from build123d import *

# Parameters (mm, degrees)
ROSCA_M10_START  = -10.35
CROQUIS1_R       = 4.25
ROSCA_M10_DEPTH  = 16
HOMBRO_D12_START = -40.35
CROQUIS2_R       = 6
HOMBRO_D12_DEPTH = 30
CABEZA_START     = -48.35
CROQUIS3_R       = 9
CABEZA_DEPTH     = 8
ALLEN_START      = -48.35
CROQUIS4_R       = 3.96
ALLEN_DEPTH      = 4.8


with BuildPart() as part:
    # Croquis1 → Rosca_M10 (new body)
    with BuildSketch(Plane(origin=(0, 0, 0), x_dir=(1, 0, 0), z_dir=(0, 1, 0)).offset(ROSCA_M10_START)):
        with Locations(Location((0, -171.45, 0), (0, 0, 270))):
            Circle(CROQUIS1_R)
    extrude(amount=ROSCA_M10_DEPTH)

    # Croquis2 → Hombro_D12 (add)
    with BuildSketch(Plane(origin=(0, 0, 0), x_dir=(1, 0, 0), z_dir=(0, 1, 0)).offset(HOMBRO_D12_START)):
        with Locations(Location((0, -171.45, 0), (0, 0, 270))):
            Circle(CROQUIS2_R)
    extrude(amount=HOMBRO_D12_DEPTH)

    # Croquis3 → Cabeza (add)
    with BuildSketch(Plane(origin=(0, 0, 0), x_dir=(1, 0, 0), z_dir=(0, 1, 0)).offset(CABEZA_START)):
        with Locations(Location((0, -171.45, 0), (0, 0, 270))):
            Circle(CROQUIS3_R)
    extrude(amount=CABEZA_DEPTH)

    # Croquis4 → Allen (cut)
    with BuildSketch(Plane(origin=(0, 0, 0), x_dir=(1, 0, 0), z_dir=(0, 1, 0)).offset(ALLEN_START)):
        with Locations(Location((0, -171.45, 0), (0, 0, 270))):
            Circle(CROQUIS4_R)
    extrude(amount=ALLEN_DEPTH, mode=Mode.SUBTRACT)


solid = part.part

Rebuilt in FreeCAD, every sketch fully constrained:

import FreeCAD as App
import Part
import Sketcher
from FreeCAD import Vector

doc = App.newDocument("Part")
body = doc.addObject("PartDesign::Body", "Body")

sketch1 = body.newObject("Sketcher::SketchObject", "Sketch")
sketch1.AttachmentSupport = (doc.getObject("XZ_Plane"), [""])
sketch1.MapMode = "FlatFace"
sketch1.AttachmentOffset = App.Placement(Vector(0, 0, 10.35), App.Rotation())
sketch1.addGeometry(Part.Circle(Vector(0, 171.4, 0), Vector(0, 0, 1), 4.2), False)
sketch1.addConstraint([
    Sketcher.Constraint("PointOnObject", 0, 3, -2),
    Sketcher.Constraint("Diameter", 0, 8.5),
    Sketcher.Constraint("DistanceY", -1, 1, 0, 3, 171.45),
])
pad1 = body.newObject("PartDesign::Pad", "Pad")
pad1.Profile = sketch1
pad1.Length = 16
pad1.Reversed = True

sketch2 = body.newObject("Sketcher::SketchObject", "Sketch001")
sketch2.AttachmentSupport = (doc.getObject("XZ_Plane"), [""])
sketch2.MapMode = "FlatFace"
sketch2.AttachmentOffset = App.Placement(Vector(0, 0, 40.35), App.Rotation())
sketch2.addGeometry(Part.Circle(Vector(0, 171, 0), Vector(0, 0, 1), 6), False)
sketch2.addConstraint([
    Sketcher.Constraint("PointOnObject", 0, 3, -2),
    Sketcher.Constraint("Diameter", 0, 12.0),
    Sketcher.Constraint("DistanceY", -1, 1, 0, 3, 171.45),
])
pad2 = body.newObject("PartDesign::Pad", "Pad001")
pad2.Profile = sketch2
pad2.Length = 30
pad2.Reversed = True

sketch3 = body.newObject("Sketcher::SketchObject", "Sketch002")
sketch3.AttachmentSupport = (doc.getObject("XZ_Plane"), [""])
sketch3.MapMode = "FlatFace"
sketch3.AttachmentOffset = App.Placement(Vector(0, 0, 48.35), App.Rotation())
sketch3.addGeometry(Part.Circle(Vector(0, 171, 0), Vector(0, 0, 1), 9), False)
sketch3.addConstraint([
    Sketcher.Constraint("PointOnObject", 0, 3, -2),
    Sketcher.Constraint("Diameter", 0, 18.0),
    Sketcher.Constraint("DistanceY", -1, 1, 0, 3, 171.45),
])
pad3 = body.newObject("PartDesign::Pad", "Pad002")
pad3.Profile = sketch3
pad3.Length = 8
pad3.Reversed = True

sketch4 = body.newObject("Sketcher::SketchObject", "Sketch003")
sketch4.AttachmentSupport = (doc.getObject("XZ_Plane"), [""])
sketch4.MapMode = "FlatFace"
sketch4.AttachmentOffset = App.Placement(Vector(0, 0, 48.35), App.Rotation())
sketch4.addGeometry(Part.Circle(Vector(0, 171.4, 0), Vector(0, 0, 1), 4), False)
sketch4.addConstraint([
    Sketcher.Constraint("PointOnObject", 0, 3, -2),
    Sketcher.Constraint("Diameter", 0, 7.92),
    Sketcher.Constraint("DistanceY", -1, 1, 0, 3, 171.45),
])
pocket1 = body.newObject("PartDesign::Pocket", "Pocket")
pocket1.Profile = sketch4
pocket1.Length = 4.8

doc.recompute()
